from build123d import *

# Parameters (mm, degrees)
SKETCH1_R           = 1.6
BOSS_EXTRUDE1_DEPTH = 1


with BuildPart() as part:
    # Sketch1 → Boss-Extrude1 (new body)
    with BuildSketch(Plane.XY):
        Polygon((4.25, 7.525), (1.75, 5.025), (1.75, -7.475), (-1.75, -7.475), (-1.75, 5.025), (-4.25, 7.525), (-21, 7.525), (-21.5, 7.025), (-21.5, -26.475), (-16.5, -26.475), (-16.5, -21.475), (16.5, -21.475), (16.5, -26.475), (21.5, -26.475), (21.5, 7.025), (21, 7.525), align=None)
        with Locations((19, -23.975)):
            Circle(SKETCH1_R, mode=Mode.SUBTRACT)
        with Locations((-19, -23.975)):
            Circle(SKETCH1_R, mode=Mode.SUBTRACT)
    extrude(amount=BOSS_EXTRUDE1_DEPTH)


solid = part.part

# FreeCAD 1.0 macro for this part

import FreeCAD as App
import Part
import Sketcher
from FreeCAD import Vector
Q = App.Units.Quantity


def add_polygon(sketch, points):
    """Adds a closed chain of lines whose ends are joined by coincident constraints."""
    first, n = sketch.GeometryCount, len(points)
    for a, b in zip(points, points[1:] + points[:1]):
        sketch.addGeometry(Part.LineSegment(App.Vector(*a, 0), App.Vector(*b, 0)), False)
    for i in range(n):
        sketch.addConstraint(Sketcher.Constraint("Coincident", first + i, 2, first + (i + 1) % n, 1))

doc = App.newDocument("Part")
params = doc.addObject("Spreadsheet::Sheet", "Params")
for row, (alias, value) in enumerate([
    ("sketch1_diameter", "3.2 mm"),
    ("sketch1_width", "5 mm"),
    ("sketch1_width2", "33 mm"),
    ("sketch1_width3", "3.5 mm"),
    ("sketch1_height", "12.5 mm"),
    ("pad1_length", "1 mm"),
], start=1):
    params.set(f"A{row}", alias)
    params.set(f"B{row}", "=" + value)
    params.setAlias(f"B{row}", alias)

body = doc.addObject("PartDesign::Body", "Body")

sketch1 = doc.addObject("Sketcher::SketchObject", "Sketch")
body.addObject(sketch1)
sketch1.AttachmentSupport = (doc.XY_Plane, [""])
sketch1.MapMode = "FlatFace"
add_polygon(sketch1, [(4.2, 7.5), (1.8, 5), (1.8, -7.5), (-1.8, -7.5), (-1.8, 5), (-4.2, 7.5), (-21, 7.5), (-21.5, 7), (-21.5, -26.5), (-16.5, -26.5), (-16.5, -21.5), (16.5, -21.5), (16.5, -26.5), (21.5, -26.5), (21.5, 7), (21, 7.5)])
sketch1.addGeometry(Part.Circle(Vector(-19, -24, 0), Vector(0, 0, 1), 1.6), False)
sketch1.addGeometry(Part.Circle(Vector(19, -24, 0), Vector(0, 0, 1), 1.6), False)
sketch1.addConstraint(Sketcher.Constraint("Vertical", 1))
sketch1.addConstraint(Sketcher.Constraint("Horizontal", 2))
sketch1.addConstraint(Sketcher.Constraint("Vertical", 3))
sketch1.addConstraint(Sketcher.Constraint("Horizontal", 5))
sketch1.addConstraint(Sketcher.Constraint("Vertical", 7))
sketch1.addConstraint(Sketcher.Constraint("Horizontal", 8))
sketch1.addConstraint(Sketcher.Constraint("Vertical", 9))
sketch1.addConstraint(Sketcher.Constraint("Horizontal", 10))
sketch1.addConstraint(Sketcher.Constraint("Vertical", 11))
sketch1.addConstraint(Sketcher.Constraint("Horizontal", 12))
sketch1.addConstraint(Sketcher.Constraint("Vertical", 13))
sketch1.addConstraint(Sketcher.Constraint("Horizontal", 15))
sketch1.addConstraint(Sketcher.Constraint("Equal", 16, 17))
sketch1.addConstraint(Sketcher.Constraint("Symmetric", 16, 3, 17, 3, -2))
sketch1.addConstraint(Sketcher.Constraint("Symmetric", 0, 2, 3, 2, -2))
sketch1.addConstraint(Sketcher.Constraint("Symmetric", 8, 2, 11, 2, -2))
sketch1.addConstraint(Sketcher.Constraint("Symmetric", 6, 2, 13, 2, -2))
sketch1.addConstraint(Sketcher.Constraint("Symmetric", 5, 2, 14, 2, -2))
sketch1.addConstraint(Sketcher.Constraint("Perpendicular", 0, 4))
sketch1.addConstraint(Sketcher.Constraint("Perpendicular", 4, 6))
sketch1.addConstraint(Sketcher.Constraint("Perpendicular", 6, 14))
sketch1.addConstraint(Sketcher.Constraint("Equal", 12, 9))
sketch1.addConstraint(Sketcher.Constraint("Diameter", 16, Q("3.2 mm")))
sketch1.addConstraint(Sketcher.Constraint("DistanceX", 8, 1, 8, 2, Q("5 mm")))
sketch1.addConstraint(Sketcher.Constraint("DistanceX", 10, 1, 10, 2, Q("33 mm")))
sketch1.addConstraint(Sketcher.Constraint("DistanceX", 2, 2, 2, 1, Q("3.5 mm")))
sketch1.addConstraint(Sketcher.Constraint("DistanceY", 1, 2, 1, 1, Q("12.5 mm")))
sketch1.addConstraint(Sketcher.Constraint("DistanceY", 7, 2, 7, 1, Q("33.5 mm")))
sketch1.addConstraint(Sketcher.Constraint("DistanceX", 16, 3, -1, 1, Q("19 mm")))
sketch1.addConstraint(Sketcher.Constraint("DistanceX", 5, 2, -1, 1, Q("21 mm")))
sketch1.addConstraint(Sketcher.Constraint("DistanceY", 17, 3, 0, 2, Q("29 mm")))
sketch1.addConstraint(Sketcher.Constraint("DistanceX", 4, 2, 0, 2, Q("6 mm")))
sketch1.addConstraint(Sketcher.Constraint("DistanceY", 16, 3, -1, 1, Q("23.975 mm")))
sketch1.setExpression("Constraints[38]", "Params.sketch1_diameter")
sketch1.setExpression("Constraints[39]", "Params.sketch1_width")
sketch1.setExpression("Constraints[40]", "Params.sketch1_width2")
sketch1.setExpression("Constraints[41]", "Params.sketch1_width3")
sketch1.setExpression("Constraints[42]", "Params.sketch1_height")
pad1 = doc.addObject("PartDesign::Pad", "Pad")
body.addObject(pad1)
pad1.Profile = sketch1
pad1.setExpression("Length", "Params.pad1_length")

doc.recompute()
